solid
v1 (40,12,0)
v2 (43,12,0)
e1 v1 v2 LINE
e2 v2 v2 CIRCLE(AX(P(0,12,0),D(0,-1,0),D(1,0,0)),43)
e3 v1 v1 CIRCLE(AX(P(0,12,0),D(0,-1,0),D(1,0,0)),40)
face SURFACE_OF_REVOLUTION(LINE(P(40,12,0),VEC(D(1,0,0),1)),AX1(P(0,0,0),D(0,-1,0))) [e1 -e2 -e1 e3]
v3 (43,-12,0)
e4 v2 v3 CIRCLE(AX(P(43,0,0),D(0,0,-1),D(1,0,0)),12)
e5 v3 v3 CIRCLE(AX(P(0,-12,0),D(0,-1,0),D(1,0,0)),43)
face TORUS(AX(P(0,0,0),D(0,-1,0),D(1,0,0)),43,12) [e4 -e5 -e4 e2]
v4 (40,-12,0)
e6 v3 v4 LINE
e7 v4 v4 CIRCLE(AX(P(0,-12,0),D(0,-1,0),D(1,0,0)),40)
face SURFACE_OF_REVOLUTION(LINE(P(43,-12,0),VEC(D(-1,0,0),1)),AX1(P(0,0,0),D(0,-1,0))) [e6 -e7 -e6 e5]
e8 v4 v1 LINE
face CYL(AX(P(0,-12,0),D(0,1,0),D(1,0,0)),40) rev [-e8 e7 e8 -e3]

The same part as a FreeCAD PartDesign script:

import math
import FreeCAD as App
import Part
import Sketcher
from FreeCAD import Vector
Q = App.Units.Quantity

doc = App.newDocument("Part")
params = doc.addObject("Spreadsheet::Sheet", "Params")
for row, (alias, value) in enumerate([
    ("sketch1_radius", "12 mm"),
    ("sketch1_width", "3 mm"),
    ("sketch2_diameter", "80 mm"),
], start=1):
    params.set(f"A{row}", alias)
    params.set(f"B{row}", "=" + value)
    params.setAlias(f"B{row}", alias)

body = doc.addObject("PartDesign::Body", "Body")

sketch1 = doc.addObject("Sketcher::SketchObject", "Sketch")
body.addObject(sketch1)
sketch1.AttachmentSupport = (doc.XY_Plane, [""])
sketch1.MapMode = "FlatFace"
sketch1.addGeometry([
    Part.LineSegment(Vector(-40, 12, 0), Vector(-43, 12, 0)),
    Part.ArcOfCircle(Part.Circle(Vector(-43, 0, 0), Vector(0, 0, 1), 12), math.radians(90), math.radians(270)),
    Part.LineSegment(Vector(-43, -12, 0), Vector(-40, -12, 0)),
    Part.LineSegment(Vector(-40, -12, 0), Vector(-40, 12, 0)),
], False)
sketch1.addConstraint([
    Sketcher.Constraint("Tangent", 0, 2, 1, 1),
    Sketcher.Constraint("Tangent", 1, 2, 2, 1),
    Sketcher.Constraint("Coincident", 2, 2, 3, 1),
    Sketcher.Constraint("Coincident", 3, 2, 0, 1),
    Sketcher.Constraint("Horizontal", 0),
    Sketcher.Constraint("Horizontal", 2),
    Sketcher.Constraint("Vertical", 3),
    Sketcher.Constraint("PointOnObject", 1, 3, -1),
    Sketcher.Constraint("Radius", 1, Q("12 mm")),
    Sketcher.Constraint("DistanceX", 0, 2, 0, 1, Q("3 mm")),
    Sketcher.Constraint("DistanceX", 1, 3, -1, 1, Q("43 mm")),
])
sketch1.setExpression("Constraints[8]", "Params.sketch1_radius")
sketch1.setExpression("Constraints[9]", "Params.sketch1_width")

sketch2 = doc.addObject("Sketcher::SketchObject", "Sketch001")
body.addObject(sketch2)
sketch2.AttachmentSupport = (doc.XZ_Plane, [""])
sketch2.MapMode = "FlatFace"
sketch2.addGeometry(Part.Circle(Vector(0, 0, 0), Vector(0, 0, 1), 40), False)
sketch2.addConstraint([
    Sketcher.Constraint("Coincident", 0, 3, -1, 1),
    Sketcher.Constraint("Diameter", 0, Q("80 mm")),
])
sketch2.setExpression("Constraints[1]", "Params.sketch2_diameter")
doc.recompute()

additivepipe = doc.addObject("PartDesign::AdditivePipe", "AdditivePipe")
body.addObject(additivepipe)
additivepipe.Profile = sketch1
additivepipe.Spine = (sketch2, ["Edge1"])

doc.recompute()
